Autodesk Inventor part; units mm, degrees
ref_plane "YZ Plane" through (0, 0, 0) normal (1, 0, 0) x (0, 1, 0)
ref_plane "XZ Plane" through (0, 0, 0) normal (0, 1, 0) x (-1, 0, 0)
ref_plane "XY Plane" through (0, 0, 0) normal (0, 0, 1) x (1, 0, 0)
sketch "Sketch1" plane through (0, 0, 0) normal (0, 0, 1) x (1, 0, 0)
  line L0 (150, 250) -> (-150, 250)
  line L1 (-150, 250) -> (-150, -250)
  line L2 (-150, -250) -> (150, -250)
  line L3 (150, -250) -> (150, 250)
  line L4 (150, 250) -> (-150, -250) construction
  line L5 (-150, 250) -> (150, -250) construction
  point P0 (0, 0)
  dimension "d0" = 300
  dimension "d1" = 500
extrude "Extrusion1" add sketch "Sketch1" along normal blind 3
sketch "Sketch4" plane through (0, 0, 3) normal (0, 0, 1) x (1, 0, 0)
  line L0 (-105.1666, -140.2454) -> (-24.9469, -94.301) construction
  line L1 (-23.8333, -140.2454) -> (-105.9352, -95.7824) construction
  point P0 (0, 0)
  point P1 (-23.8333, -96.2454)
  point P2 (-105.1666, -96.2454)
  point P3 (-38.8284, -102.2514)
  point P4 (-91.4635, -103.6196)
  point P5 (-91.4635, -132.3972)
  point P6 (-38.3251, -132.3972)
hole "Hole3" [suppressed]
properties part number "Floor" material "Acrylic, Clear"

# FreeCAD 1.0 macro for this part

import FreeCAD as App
import Part
import Sketcher

V = App.Vector


def add_polygon(sketch, points):
    """Adds a closed chain of lines whose ends are joined by coincident constraints."""
    first, n = sketch.GeometryCount, len(points)
    for a, b in zip(points, points[1:] + points[:1]):
        sketch.addGeometry(Part.LineSegment(App.Vector(*a, 0), App.Vector(*b, 0)), False)
    for i in range(n):
        sketch.addConstraint(Sketcher.Constraint("Coincident", first + i, 2, first + (i + 1) % n, 1))

doc = App.newDocument("Part")
body = doc.addObject("PartDesign::Body", "Body")

# Sketch on XY plane
sketch1 = doc.addObject("Sketcher::SketchObject", "Sketch")
body.addObject(sketch1)
sketch1.AttachmentSupport = (doc.XY_Plane, [""])
sketch1.MapMode = "FlatFace"
add_polygon(sketch1, [(150, -250), (150, 250), (-150, 250), (-150, -250)])  # lines 0-3
sketch1.addConstraint(Sketcher.Constraint("Vertical", 0))
sketch1.addConstraint(Sketcher.Constraint("Horizontal", 1))
sketch1.addConstraint(Sketcher.Constraint("Vertical", 2))
sketch1.addConstraint(Sketcher.Constraint("Horizontal", 3))
sketch1.addConstraint(Sketcher.Constraint("Symmetric", 0, 2, 2, 2, -1, 1))
sketch1.addConstraint(Sketcher.Constraint("DistanceX", 1, 2, 1, 1, 300.0))
sketch1.addConstraint(Sketcher.Constraint("DistanceY", 0, 1, 0, 2, 500.0))
pad1 = doc.addObject("PartDesign::Pad", "Pad")
body.addObject(pad1)
pad1.Profile = sketch1
pad1.Length = 3

doc.recompute()
